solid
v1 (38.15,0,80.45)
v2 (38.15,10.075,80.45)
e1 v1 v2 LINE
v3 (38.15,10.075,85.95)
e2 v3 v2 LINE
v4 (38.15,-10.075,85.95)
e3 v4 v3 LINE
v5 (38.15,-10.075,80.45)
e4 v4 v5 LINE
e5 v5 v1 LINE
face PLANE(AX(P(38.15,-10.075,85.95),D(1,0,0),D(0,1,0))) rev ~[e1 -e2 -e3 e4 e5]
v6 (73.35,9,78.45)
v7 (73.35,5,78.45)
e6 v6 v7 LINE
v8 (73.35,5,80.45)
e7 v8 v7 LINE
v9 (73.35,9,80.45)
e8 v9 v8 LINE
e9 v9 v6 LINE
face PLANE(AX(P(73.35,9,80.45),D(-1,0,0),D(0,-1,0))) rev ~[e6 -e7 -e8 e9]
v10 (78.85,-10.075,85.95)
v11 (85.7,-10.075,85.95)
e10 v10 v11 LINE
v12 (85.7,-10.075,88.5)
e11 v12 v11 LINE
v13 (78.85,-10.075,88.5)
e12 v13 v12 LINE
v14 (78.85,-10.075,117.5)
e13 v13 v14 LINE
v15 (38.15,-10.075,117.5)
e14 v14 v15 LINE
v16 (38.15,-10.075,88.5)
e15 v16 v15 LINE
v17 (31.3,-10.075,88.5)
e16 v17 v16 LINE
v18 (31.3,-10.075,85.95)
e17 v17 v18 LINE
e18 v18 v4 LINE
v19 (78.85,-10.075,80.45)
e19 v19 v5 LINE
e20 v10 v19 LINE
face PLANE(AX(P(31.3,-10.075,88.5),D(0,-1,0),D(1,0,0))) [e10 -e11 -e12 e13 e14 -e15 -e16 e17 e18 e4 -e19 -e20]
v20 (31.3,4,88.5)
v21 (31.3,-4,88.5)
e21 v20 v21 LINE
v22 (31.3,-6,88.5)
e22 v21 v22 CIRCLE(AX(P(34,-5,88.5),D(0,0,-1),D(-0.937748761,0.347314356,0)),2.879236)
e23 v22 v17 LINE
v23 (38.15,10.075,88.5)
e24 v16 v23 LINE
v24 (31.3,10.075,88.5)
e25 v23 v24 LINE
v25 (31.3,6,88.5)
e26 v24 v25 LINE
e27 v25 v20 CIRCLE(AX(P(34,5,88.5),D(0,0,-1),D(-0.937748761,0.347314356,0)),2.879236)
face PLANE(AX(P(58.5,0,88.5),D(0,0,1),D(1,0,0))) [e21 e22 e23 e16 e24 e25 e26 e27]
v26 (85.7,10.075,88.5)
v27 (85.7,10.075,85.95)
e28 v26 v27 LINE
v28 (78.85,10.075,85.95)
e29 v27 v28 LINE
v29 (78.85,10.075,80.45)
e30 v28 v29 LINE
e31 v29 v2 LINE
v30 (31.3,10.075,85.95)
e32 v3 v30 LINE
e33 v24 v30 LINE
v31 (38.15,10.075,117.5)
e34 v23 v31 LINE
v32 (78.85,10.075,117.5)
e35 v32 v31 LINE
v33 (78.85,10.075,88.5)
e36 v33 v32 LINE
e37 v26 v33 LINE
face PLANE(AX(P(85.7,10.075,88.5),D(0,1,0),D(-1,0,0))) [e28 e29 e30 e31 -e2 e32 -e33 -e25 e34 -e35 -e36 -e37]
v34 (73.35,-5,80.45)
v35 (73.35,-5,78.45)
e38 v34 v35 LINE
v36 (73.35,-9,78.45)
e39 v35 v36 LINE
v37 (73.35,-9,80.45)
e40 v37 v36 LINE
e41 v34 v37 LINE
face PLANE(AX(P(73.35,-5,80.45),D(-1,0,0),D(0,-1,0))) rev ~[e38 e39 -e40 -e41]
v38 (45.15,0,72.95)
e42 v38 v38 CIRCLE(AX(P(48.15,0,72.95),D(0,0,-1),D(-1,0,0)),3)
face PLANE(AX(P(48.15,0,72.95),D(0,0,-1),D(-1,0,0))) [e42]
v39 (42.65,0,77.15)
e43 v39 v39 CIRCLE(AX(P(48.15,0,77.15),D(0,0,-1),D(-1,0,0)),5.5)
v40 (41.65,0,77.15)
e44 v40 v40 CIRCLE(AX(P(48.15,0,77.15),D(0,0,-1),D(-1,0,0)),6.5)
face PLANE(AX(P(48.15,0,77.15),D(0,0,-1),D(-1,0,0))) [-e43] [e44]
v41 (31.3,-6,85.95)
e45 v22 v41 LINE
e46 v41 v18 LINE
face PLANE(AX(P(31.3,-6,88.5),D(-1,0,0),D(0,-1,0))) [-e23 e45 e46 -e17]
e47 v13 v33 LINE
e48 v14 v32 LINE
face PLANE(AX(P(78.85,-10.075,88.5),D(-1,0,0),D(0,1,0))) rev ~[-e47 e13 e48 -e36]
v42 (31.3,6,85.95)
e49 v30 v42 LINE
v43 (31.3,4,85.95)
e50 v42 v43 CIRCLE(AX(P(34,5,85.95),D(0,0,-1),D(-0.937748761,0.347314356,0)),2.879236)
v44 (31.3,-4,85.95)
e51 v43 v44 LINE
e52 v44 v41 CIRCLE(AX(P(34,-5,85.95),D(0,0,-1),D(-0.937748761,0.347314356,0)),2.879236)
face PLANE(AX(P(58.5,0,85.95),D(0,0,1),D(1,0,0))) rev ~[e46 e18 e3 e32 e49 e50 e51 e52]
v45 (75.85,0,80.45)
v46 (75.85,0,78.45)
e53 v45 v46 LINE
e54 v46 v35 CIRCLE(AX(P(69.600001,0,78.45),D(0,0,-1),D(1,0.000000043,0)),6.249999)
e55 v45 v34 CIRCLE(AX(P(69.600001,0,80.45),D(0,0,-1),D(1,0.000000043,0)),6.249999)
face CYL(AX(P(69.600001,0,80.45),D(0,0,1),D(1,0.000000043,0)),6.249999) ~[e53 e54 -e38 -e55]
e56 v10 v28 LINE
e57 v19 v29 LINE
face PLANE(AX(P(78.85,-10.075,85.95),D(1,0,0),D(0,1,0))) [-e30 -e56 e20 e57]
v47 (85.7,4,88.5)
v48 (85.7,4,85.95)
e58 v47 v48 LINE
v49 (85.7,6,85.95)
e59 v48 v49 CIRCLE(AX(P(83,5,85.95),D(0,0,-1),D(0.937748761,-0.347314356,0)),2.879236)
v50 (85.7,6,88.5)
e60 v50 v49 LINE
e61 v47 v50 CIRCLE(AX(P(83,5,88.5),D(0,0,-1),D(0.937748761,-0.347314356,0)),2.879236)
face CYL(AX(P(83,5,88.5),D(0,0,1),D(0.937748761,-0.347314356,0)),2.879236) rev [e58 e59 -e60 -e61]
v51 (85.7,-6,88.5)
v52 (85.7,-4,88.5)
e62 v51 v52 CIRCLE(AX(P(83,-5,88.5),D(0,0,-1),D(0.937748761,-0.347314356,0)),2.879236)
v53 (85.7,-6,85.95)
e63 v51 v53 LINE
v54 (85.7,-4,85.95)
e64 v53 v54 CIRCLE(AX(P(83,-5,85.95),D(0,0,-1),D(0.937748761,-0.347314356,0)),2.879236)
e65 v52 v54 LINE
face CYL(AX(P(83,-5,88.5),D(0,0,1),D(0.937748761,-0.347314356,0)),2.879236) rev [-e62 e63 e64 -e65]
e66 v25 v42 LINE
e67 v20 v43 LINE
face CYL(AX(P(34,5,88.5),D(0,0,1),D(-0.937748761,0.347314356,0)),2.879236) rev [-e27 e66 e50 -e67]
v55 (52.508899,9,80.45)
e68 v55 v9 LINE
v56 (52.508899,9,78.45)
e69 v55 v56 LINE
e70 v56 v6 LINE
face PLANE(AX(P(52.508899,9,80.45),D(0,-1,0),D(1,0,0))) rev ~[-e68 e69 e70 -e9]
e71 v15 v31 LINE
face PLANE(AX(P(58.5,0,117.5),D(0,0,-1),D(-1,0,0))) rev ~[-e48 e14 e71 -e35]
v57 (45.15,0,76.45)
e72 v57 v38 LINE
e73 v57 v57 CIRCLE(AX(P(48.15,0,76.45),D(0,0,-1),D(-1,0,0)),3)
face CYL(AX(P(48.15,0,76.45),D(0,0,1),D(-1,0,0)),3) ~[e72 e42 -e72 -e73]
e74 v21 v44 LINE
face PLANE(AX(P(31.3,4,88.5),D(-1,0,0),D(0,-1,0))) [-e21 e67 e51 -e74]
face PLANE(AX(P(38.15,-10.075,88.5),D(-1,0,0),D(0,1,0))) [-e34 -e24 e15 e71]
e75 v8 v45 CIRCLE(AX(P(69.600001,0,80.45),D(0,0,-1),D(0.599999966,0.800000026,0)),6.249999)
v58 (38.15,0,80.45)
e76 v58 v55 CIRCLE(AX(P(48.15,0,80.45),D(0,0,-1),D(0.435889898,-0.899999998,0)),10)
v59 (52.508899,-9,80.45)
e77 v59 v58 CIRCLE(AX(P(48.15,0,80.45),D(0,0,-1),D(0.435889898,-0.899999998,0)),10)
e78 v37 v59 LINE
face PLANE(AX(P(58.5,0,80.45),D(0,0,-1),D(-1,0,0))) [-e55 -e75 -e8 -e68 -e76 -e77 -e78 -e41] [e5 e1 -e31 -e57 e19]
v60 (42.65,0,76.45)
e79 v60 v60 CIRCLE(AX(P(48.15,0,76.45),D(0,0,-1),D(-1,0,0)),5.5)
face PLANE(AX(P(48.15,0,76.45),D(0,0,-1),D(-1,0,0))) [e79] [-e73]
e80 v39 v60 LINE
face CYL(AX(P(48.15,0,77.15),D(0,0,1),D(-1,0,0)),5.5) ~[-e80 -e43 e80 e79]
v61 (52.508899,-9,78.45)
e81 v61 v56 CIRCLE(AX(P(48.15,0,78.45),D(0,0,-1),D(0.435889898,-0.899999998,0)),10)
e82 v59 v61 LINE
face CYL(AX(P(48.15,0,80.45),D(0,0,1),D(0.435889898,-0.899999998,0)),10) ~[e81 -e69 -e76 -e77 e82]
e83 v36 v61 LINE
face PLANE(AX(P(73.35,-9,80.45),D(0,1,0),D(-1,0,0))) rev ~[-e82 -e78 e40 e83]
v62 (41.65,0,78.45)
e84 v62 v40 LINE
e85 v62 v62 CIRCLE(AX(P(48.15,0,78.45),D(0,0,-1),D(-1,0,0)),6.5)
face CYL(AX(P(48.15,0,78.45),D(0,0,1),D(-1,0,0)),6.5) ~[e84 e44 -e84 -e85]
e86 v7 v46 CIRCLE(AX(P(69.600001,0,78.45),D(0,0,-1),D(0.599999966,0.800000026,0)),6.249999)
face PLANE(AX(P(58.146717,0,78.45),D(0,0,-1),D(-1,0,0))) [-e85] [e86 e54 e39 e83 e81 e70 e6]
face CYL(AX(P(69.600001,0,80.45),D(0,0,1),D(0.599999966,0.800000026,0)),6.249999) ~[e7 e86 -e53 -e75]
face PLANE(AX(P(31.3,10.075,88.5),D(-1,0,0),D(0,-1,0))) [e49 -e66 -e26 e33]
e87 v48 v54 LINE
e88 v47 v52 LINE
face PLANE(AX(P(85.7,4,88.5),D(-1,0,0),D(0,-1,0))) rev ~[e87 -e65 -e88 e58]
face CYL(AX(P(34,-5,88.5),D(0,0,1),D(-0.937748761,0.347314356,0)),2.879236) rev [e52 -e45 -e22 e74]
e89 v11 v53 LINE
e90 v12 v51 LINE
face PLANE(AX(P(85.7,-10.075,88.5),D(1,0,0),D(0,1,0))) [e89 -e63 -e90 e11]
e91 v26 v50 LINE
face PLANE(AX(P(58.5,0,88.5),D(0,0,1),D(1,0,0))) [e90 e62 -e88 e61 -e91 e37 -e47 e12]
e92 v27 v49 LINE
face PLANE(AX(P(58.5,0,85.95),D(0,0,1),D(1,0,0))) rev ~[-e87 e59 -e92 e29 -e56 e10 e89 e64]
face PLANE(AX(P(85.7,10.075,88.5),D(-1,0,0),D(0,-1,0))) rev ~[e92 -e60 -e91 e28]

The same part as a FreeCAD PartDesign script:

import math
import FreeCAD as App
import Part
import Sketcher

V = App.Vector

doc = App.newDocument("Part")
body = doc.addObject("PartDesign::Body", "Body")

sketch1 = body.newObject("Sketcher::SketchObject", "Sketch")
sketch1.AttachmentSupport = (doc.getObject("XY_Plane"), [""])
sketch1.MapMode = "FlatFace"
sketch1.addGeometry([
    Part.LineSegment(V(-20, 10, 0), V(-20, -10, 0)),
    Part.LineSegment(V(-20, -10, 0), V(20, -10, 0)),
    Part.LineSegment(V(20, -10, 0), V(20, 10, 0)),
    Part.LineSegment(V(20, 10, 0), V(-20, 10, 0)),
], False)
sketch1.addConstraint([
    Sketcher.Constraint("Coincident", 0, 2, 1, 1),
    Sketcher.Constraint("Coincident", 1, 2, 2, 1),
    Sketcher.Constraint("Coincident", 2, 2, 3, 1),
    Sketcher.Constraint("Coincident", 3, 2, 0, 1),
    Sketcher.Constraint("Vertical", 0),
    Sketcher.Constraint("Horizontal", 1),
    Sketcher.Constraint("Vertical", 2),
    Sketcher.Constraint("Horizontal", 3),
    Sketcher.Constraint("Symmetric", 0, 2, 2, 2, -1, 1),
    Sketcher.Constraint("DistanceX", 1, 1, 1, 2, 40.7),
    Sketcher.Constraint("DistanceY", 0, 2, 0, 1, 20.15),
])
pad1 = body.newObject("PartDesign::Pad", "Pad")
pad1.Profile = sketch1
pad1.Length = 29
pad1.Reversed = True

sketch2 = body.newObject("Sketcher::SketchObject", "Sketch001")
sketch2.AttachmentSupport = (doc.getObject("XY_Plane"), [""])
sketch2.MapMode = "FlatFace"
sketch2.addGeometry([
    Part.LineSegment(V(27.2, 10.1, 0), V(-27.2, 10.1, 0)),
    Part.LineSegment(V(-27.2, 10.1, 0), V(-27.2, 6, 0)),
    Part.ArcOfCircle(Part.Circle(V(-24.5, 5, 0), V(0, 0, 1), 2.9), math.radians(-160), math.radians(160)),
    Part.LineSegment(V(-27.2, 4, 0), V(-27.2, -4, 0)),
    Part.ArcOfCircle(Part.Circle(V(-24.5, -5, 0), V(0, 0, 1), 2.9), math.radians(-160), math.radians(160)),
    Part.LineSegment(V(-27.2, -6, 0), V(-27.2, -10.1, 0)),
    Part.LineSegment(V(-27.2, -10.1, 0), V(27.2, -10.1, 0)),
    Part.LineSegment(V(27.2, -10.1, 0), V(27.2, -6, 0)),
    Part.ArcOfCircle(Part.Circle(V(24.5, -5, 0), V(0, 0, 1), 2.9), math.radians(20), math.radians(340)),
    Part.LineSegment(V(27.2, -4, 0), V(27.2, 4, 0)),
    Part.ArcOfCircle(Part.Circle(V(24.5, 5, 0), V(0, 0, 1), 2.9), math.radians(20), math.radians(340)),
    Part.LineSegment(V(27.2, 6, 0), V(27.2, 10.1, 0)),
], False)
sketch2.addConstraint([
    Sketcher.Constraint("Coincident", 0, 2, 1, 1),
    Sketcher.Constraint("Coincident", 1, 2, 2, 2),
    Sketcher.Constraint("Coincident", 2, 1, 3, 1),
    Sketcher.Constraint("Coincident", 3, 2, 4, 2),
    Sketcher.Constraint("Coincident", 4, 1, 5, 1),
    Sketcher.Constraint("Coincident", 5, 2, 6, 1),
    Sketcher.Constraint("Coincident", 6, 2, 7, 1),
    Sketcher.Constraint("Coincident", 7, 2, 8, 2),
    Sketcher.Constraint("Coincident", 8, 1, 9, 1),
    Sketcher.Constraint("Coincident", 9, 2, 10, 2),
    Sketcher.Constraint("Coincident", 10, 1, 11, 1),
    Sketcher.Constraint("Coincident", 11, 2, 0, 1),
    Sketcher.Constraint("Horizontal", 0),
    Sketcher.Constraint("Vertical", 1),
    Sketcher.Constraint("Vertical", 3),
    Sketcher.Constraint("Vertical", 5),
    Sketcher.Constraint("Horizontal", 6),
    Sketcher.Constraint("Vertical", 7),
    Sketcher.Constraint("Vertical", 9),
    Sketcher.Constraint("Vertical", 11),
    Sketcher.Constraint("Equal", 2, 4),
    Sketcher.Constraint("Equal", 4, 8),
    Sketcher.Constraint("Equal", 8, 10),
    Sketcher.Constraint("Symmetric", 2, 3, 8, 3, -1, 1),
    Sketcher.Constraint("Symmetric", 4, 3, 10, 3, -1, 1),
    Sketcher.Constraint("Symmetric", 0, 2, 6, 2, -1, 1),
    Sketcher.Constraint("Symmetric", 4, 3, 8, 3, -2),
    Sketcher.Constraint("Horizontal", 4, 1, 7, 2),
    Sketcher.Constraint("Horizontal", 3, 2, 8, 1),
    Sketcher.Constraint("Horizontal", 1, 2, 10, 1),
    Sketcher.Constraint("Vertical", 1, 2, 2, 1),
    Sketcher.Constraint("DistanceY", 3, 2, 3, 1, 8.0),
    Sketcher.Constraint("DistanceX", 0, 2, 0, 1, 54.4),
    Sketcher.Constraint("DistanceY", -1, 1, 2, 3, 5.0),
    Sketcher.Constraint("DistanceX", 4, 3, 8, 3, 49.0),
    Sketcher.Constraint("DistanceY", 1, 2, 1, 1, 4.075),
])
pad2 = body.newObject("PartDesign::Pad", "Pad001")
pad2.Profile = sketch2
pad2.Length = 2.55

sketch3 = body.newObject("Sketcher::SketchObject", "Sketch002")
sketch3.AttachmentSupport = (doc.getObject("XY_Plane"), [""])
sketch3.MapMode = "FlatFace"
sketch3.AttachmentOffset = App.Placement(V(0, 0, 2.55), App.Rotation())
sketch3.addGeometry([
    Part.LineSegment(V(-20, 10, 0), V(-20, -10, 0)),
    Part.LineSegment(V(-20, -10, 0), V(20, -10, 0)),
    Part.LineSegment(V(20, -10, 0), V(20, 10, 0)),
    Part.LineSegment(V(20, 10, 0), V(-20, 10, 0)),
], False)
sketch3.addConstraint([
    Sketcher.Constraint("Coincident", 0, 2, 1, 1),
    Sketcher.Constraint("Coincident", 1, 2, 2, 1),
    Sketcher.Constraint("Coincident", 2, 2, 3, 1),
    Sketcher.Constraint("Coincident", 3, 2, 0, 1),
    Sketcher.Constraint("Vertical", 0),
    Sketcher.Constraint("Horizontal", 1),
    Sketcher.Constraint("Vertical", 2),
    Sketcher.Constraint("Horizontal", 3),
    Sketcher.Constraint("Symmetric", 0, 2, 2, 2, -1, 1),
    Sketcher.Constraint("DistanceX", 1, 1, 1, 2, 40.7),
    Sketcher.Constraint("DistanceY", 0, 2, 0, 1, 20.15),
])
pad3 = body.newObject("PartDesign::Pad", "Pad002")
pad3.Profile = sketch3
pad3.Length = 5.5

sketch4 = body.newObject("Sketcher::SketchObject", "Sketch003")
sketch4.AttachmentSupport = (doc.getObject("XY_Plane"), [""])
sketch4.MapMode = "FlatFace"
sketch4.AttachmentOffset = App.Placement(V(0, 0, 8.05), App.Rotation())
sketch4.addGeometry([
    Part.ArcOfCircle(Part.Circle(V(10.3, 0, 0), V(0, 0, 1), 10), math.radians(-116), math.radians(116)),
    Part.LineSegment(V(6, 9, 0), V(-14.8, 9, 0)),
    Part.LineSegment(V(-14.8, 9, 0), V(-14.8, 5, 0)),
    Part.ArcOfCircle(Part.Circle(V(-11.1, 0, 0), V(0, 0, 1), 6.2), math.radians(127), math.radians(180)),
    Part.ArcOfCircle(Part.Circle(V(-11.1, 0, 0), V(0, 0, 1), 6.2), math.radians(180), math.radians(233)),
    Part.LineSegment(V(-14.8, -5, 0), V(-14.8, -9, 0)),
    Part.LineSegment(V(-14.8, -9, 0), V(6, -9, 0)),
], False)
sketch4.addConstraint([
    Sketcher.Constraint("Coincident", 0, 2, 1, 1),
    Sketcher.Constraint("Coincident", 1, 2, 2, 1),
    Sketcher.Constraint("Coincident", 2, 2, 3, 1),
    Sketcher.Constraint("Tangent", 3, 2, 4, 1),
    Sketcher.Constraint("Coincident", 4, 2, 5, 1),
    Sketcher.Constraint("Coincident", 5, 2, 6, 1),
    Sketcher.Constraint("Coincident", 6, 2, 0, 1),
    Sketcher.Constraint("Horizontal", 1),
    Sketcher.Constraint("Vertical", 2),
    Sketcher.Constraint("Vertical", 5),
    Sketcher.Constraint("Horizontal", 6),
    Sketcher.Constraint("Equal", 3, 4),
    Sketcher.Constraint("Symmetric", 2, 2, 4, 2, -1),
    Sketcher.Constraint("Symmetric", 0, 2, 6, 2, -1),
    Sketcher.Constraint("PointOnObject", 3, 2, -1),
    Sketcher.Constraint("Radius", 0, 10.0),
    Sketcher.Constraint("DistanceY", 2, 2, 2, 1, 4.0),
    Sketcher.Constraint("Radius", 3, 6.249999),
    Sketcher.Constraint("DistanceY", -1, 1, 0, 2, 9.0),
    Sketcher.Constraint("DistanceX", 3, 3, -1, 1, 11.100001),
    Sketcher.Constraint("DistanceX", 1, 2, 0, 3, 25.2),
])
pad4 = body.newObject("PartDesign::Pad", "Pad003")
pad4.Profile = sketch4
pad4.Length = 2

sketch5 = body.newObject("Sketcher::SketchObject", "Sketch004")
sketch5.AttachmentSupport = (doc.getObject("XY_Plane"), [""])
sketch5.MapMode = "FlatFace"
sketch5.AttachmentOffset = App.Placement(V(0, 0, 10.05), App.Rotation())
sketch5.addGeometry(Part.Circle(V(10, 0, 0), V(0, 0, 1), 6), False)
sketch5.addConstraint([
    Sketcher.Constraint("PointOnObject", 0, 3, -1),
    Sketcher.Constraint("Diameter", 0, 13.0),
    Sketcher.Constraint("DistanceX", -1, 1, 0, 3, 10.35),
])
pad5 = body.newObject("PartDesign::Pad", "Pad004")
pad5.Profile = sketch5
pad5.Length = 1.3

sketch6 = body.newObject("Sketcher::SketchObject", "Sketch005")
sketch6.AttachmentSupport = (doc.getObject("XY_Plane"), [""])
sketch6.MapMode = "FlatFace"
sketch6.AttachmentOffset = App.Placement(V(0, 0, 11.35), App.Rotation())
sketch6.addGeometry(Part.Circle(V(10, 0, 0), V(0, 0, 1), 6), False)
sketch6.addConstraint([
    Sketcher.Constraint("PointOnObject", 0, 3, -1),
    Sketcher.Constraint("Diameter", 0, 11.0),
    Sketcher.Constraint("DistanceX", -1, 1, 0, 3, 10.35),
])
pad6 = body.newObject("PartDesign::Pad", "Pad005")
pad6.Profile = sketch6
pad6.Length = 0.7

sketch7 = body.newObject("Sketcher::SketchObject", "Sketch006")
sketch7.AttachmentSupport = (doc.getObject("XY_Plane"), [""])
sketch7.MapMode = "FlatFace"
sketch7.AttachmentOffset = App.Placement(V(0, 0, 12.05), App.Rotation())
sketch7.addGeometry(Part.Circle(V(10.3, 0, 0), V(0, 0, 1), 3), False)
sketch7.addConstraint([
    Sketcher.Constraint("PointOnObject", 0, 3, -1),
    Sketcher.Constraint("Diameter", 0, 6.0),
    Sketcher.Constraint("DistanceX", -1, 1, 0, 3, 10.35),
])
pad7 = body.newObject("PartDesign::Pad", "Pad006")
pad7.Profile = sketch7
pad7.Length = 3.5
body2 = doc.addObject("PartDesign::Body", "Body001")
doc.recompute()

body.Placement = App.Placement(V(-58.5, 0, 88.5), App.Rotation(V(1, 0, 0), 180))
boolean = body2.newObject("PartDesign::Boolean", "Boolean")
boolean.Type = "Fuse"
boolean.addObjects([body])
body3 = doc.addObject("PartDesign::Body", "Body002")
doc.recompute()

body2.Placement = App.Placement(V(0, 0, 0), App.Rotation(V(0, 0, 1), 180))
boolean2 = body3.newObject("PartDesign::Boolean", "Boolean001")
boolean2.Type = "Fuse"
boolean2.addObjects([body2])

doc.recompute()
